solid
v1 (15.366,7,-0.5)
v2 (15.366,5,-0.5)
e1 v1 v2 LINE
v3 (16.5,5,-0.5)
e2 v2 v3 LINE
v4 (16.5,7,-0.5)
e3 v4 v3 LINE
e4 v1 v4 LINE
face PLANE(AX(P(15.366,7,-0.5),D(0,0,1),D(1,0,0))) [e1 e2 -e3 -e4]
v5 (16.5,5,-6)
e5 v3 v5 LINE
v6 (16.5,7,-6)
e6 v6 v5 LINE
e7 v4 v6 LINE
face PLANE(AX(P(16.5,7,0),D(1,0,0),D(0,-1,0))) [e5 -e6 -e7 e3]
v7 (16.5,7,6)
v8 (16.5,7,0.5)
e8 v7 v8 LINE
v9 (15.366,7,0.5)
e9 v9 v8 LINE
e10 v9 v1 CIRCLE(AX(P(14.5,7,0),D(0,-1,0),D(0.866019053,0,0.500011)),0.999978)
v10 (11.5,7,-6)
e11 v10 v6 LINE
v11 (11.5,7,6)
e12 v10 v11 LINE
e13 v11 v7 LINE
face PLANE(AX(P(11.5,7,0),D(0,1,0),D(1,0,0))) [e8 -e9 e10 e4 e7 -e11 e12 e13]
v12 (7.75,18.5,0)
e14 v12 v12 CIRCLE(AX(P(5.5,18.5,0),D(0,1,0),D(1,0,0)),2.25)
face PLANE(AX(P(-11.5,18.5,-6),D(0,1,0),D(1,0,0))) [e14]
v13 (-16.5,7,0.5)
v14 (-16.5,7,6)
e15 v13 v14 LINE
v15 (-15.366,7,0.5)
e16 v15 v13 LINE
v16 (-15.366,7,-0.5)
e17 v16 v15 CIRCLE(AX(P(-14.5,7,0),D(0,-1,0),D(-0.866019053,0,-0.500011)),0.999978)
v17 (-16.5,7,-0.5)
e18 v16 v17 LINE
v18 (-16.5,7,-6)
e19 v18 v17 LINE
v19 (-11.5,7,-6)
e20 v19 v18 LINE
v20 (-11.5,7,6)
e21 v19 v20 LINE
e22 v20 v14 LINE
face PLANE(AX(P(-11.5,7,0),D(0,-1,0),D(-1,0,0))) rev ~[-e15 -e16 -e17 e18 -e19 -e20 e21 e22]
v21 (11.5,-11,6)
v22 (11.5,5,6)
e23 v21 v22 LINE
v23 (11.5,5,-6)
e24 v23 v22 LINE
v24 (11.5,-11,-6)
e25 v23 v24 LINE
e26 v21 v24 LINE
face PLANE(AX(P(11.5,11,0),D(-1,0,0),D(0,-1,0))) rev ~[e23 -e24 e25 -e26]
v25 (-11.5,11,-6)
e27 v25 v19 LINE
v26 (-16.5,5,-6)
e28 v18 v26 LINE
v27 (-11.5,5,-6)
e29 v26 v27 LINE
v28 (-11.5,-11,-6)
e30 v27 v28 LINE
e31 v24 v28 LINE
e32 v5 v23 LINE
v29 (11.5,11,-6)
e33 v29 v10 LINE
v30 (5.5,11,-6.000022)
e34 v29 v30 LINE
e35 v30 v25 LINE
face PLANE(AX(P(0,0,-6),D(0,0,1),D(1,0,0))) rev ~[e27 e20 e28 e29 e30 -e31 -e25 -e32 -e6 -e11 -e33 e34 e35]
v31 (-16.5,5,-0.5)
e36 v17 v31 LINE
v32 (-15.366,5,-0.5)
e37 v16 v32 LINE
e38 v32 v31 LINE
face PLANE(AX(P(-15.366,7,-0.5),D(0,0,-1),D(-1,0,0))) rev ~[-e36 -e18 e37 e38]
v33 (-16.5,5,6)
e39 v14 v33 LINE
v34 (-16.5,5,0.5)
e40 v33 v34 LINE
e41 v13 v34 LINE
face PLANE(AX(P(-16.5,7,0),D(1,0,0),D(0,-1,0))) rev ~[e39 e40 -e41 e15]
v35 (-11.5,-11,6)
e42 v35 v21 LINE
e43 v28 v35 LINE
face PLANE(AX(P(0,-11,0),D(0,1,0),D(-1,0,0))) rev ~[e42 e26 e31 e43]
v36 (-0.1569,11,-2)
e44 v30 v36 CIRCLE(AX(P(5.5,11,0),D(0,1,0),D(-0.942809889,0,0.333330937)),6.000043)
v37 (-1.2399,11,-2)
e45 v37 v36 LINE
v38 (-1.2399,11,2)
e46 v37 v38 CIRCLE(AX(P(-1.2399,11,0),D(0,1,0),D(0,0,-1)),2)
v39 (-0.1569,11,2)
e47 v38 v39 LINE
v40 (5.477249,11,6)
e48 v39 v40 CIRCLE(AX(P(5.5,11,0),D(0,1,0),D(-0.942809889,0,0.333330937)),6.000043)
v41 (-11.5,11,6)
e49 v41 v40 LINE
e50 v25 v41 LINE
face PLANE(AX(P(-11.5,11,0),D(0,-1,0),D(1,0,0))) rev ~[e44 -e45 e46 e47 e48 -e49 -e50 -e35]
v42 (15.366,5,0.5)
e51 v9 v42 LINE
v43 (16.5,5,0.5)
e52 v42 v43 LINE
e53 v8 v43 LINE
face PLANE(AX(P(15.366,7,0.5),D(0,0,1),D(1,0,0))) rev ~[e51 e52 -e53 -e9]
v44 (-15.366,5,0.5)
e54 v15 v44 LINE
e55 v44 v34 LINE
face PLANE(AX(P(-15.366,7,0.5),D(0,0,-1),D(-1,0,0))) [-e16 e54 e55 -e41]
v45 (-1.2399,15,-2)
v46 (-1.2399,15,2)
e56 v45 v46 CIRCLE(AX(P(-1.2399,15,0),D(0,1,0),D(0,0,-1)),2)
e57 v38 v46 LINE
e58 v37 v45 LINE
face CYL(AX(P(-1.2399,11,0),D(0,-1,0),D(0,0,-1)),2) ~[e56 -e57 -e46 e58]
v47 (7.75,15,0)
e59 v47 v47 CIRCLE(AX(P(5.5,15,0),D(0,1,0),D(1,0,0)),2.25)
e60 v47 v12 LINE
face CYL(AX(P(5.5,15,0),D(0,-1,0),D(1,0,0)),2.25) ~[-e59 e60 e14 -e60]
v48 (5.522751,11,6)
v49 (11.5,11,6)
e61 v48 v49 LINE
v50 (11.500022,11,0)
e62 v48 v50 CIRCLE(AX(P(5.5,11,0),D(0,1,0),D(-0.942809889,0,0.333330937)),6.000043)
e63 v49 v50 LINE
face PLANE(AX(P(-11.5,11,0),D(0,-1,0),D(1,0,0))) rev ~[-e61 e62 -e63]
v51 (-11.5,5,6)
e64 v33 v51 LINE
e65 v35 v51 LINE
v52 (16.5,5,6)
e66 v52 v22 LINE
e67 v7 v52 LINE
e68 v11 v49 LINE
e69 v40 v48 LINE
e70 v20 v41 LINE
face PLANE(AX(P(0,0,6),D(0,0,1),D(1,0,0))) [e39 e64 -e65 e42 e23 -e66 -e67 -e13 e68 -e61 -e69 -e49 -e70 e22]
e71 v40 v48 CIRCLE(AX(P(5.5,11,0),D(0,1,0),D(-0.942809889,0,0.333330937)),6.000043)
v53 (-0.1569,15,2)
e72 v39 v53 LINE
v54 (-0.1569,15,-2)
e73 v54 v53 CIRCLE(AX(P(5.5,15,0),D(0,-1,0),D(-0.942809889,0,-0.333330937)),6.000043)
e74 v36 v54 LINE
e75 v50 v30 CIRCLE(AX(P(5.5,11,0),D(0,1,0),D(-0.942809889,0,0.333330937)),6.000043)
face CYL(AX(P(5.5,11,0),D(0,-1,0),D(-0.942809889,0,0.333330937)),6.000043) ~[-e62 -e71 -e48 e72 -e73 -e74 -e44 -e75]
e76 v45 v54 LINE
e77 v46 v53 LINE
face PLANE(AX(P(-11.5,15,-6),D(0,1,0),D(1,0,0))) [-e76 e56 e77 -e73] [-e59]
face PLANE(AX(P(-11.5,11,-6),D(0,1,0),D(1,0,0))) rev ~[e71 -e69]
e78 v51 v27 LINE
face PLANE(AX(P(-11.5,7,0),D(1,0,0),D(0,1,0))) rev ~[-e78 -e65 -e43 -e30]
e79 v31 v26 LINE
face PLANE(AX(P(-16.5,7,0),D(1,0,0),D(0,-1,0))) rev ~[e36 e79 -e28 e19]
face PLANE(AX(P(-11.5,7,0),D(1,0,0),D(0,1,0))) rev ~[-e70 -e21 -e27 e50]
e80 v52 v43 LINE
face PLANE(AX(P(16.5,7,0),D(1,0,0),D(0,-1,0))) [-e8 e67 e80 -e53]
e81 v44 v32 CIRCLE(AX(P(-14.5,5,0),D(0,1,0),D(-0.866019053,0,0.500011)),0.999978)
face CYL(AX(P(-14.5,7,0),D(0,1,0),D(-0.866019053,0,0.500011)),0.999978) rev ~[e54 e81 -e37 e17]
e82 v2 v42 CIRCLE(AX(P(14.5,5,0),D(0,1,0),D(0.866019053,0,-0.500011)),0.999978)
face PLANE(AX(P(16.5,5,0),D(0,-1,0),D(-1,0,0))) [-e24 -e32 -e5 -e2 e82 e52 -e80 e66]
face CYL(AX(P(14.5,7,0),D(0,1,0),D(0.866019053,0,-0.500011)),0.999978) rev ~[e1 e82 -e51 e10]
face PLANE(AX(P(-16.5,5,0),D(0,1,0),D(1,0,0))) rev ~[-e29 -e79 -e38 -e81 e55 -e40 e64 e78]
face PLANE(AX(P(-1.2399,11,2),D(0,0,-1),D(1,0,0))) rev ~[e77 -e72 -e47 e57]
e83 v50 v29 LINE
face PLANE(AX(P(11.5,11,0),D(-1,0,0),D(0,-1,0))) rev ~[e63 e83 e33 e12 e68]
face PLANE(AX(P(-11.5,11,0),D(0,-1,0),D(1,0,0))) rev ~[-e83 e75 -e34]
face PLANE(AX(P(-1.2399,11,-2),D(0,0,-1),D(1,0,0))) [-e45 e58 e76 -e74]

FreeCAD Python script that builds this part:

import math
import FreeCAD as App
import Part
import Sketcher
from FreeCAD import Vector


def add_polygon(sketch, points):
    """Adds a closed chain of lines whose ends are joined by coincident constraints."""
    first, n = sketch.GeometryCount, len(points)
    for a, b in zip(points, points[1:] + points[:1]):
        sketch.addGeometry(Part.LineSegment(App.Vector(*a, 0), App.Vector(*b, 0)), False)
    for i in range(n):
        sketch.addConstraint(Sketcher.Constraint("Coincident", first + i, 2, first + (i + 1) % n, 1))

doc = App.newDocument("Part")
body = doc.addObject("PartDesign::Body", "Body")

# Sketch on XY plane
sketch1 = doc.addObject("Sketcher::SketchObject", "Sketch")
body.addObject(sketch1)
sketch1.AttachmentSupport = (doc.XY_Plane, [""])
sketch1.MapMode = "FlatFace"
add_polygon(sketch1, [(-11.5, 11), (-11.5, -11), (11.5, -11), (11.5, 11)])  # lines 0-3
sketch1.addConstraint([
    Sketcher.Constraint("Vertical", 0),
    Sketcher.Constraint("Horizontal", 1),
    Sketcher.Constraint("Vertical", 2),
    Sketcher.Constraint("Horizontal", 3),
    Sketcher.Constraint("Symmetric", 0, 2, 2, 2, -1, 1),
    Sketcher.Constraint("DistanceX", 1, 1, 1, 2, 23.0),
    Sketcher.Constraint("DistanceY", 0, 2, 0, 1, 22.0),
])
pad1 = doc.addObject("PartDesign::Pad", "Pad")
body.addObject(pad1)
pad1.Profile = sketch1
pad1.Length = 12
pad1.Midplane = True

# Sketch on XY plane
sketch2 = doc.addObject("Sketcher::SketchObject", "Sketch001")
body.addObject(sketch2)
sketch2.AttachmentSupport = (doc.XY_Plane, [""])
sketch2.MapMode = "FlatFace"
add_polygon(sketch2, [(-11.5, 5), (-11.5, 7), (-16.5, 7), (-16.5, 5)])  # lines 0-3
add_polygon(sketch2, [(16.5, 7), (11.5, 7), (11.5, 5), (16.5, 5)])  # lines 4-7
sketch2.addConstraint([
    Sketcher.Constraint("Vertical", 0),
    Sketcher.Constraint("Horizontal", 1),
    Sketcher.Constraint("Vertical", 2),
    Sketcher.Constraint("Horizontal", 3),
    Sketcher.Constraint("Horizontal", 4),
    Sketcher.Constraint("Vertical", 5),
    Sketcher.Constraint("Horizontal", 6),
    Sketcher.Constraint("Vertical", 7),
    Sketcher.Constraint("Symmetric", 0, 2, 4, 2, -2),
    Sketcher.Constraint("Symmetric", 2, 2, 6, 2, -2),
    Sketcher.Constraint("DistanceX", 1, 2, 1, 1, 5.0),
    Sketcher.Constraint("DistanceY", 0, 1, 0, 2, 2.0),
    Sketcher.Constraint("DistanceY", -1, 1, 2, 2, 5.0),
    Sketcher.Constraint("DistanceX", 0, 2, 4, 2, 23.0),
])
pad2 = doc.addObject("PartDesign::Pad", "Pad001")
body.addObject(pad2)
pad2.Profile = sketch2
pad2.Length = 12
pad2.Midplane = True

# Sketch on XZ plane
sketch3 = doc.addObject("Sketcher::SketchObject", "Sketch002")
body.addObject(sketch3)
sketch3.AttachmentSupport = (doc.XZ_Plane, [""])
sketch3.MapMode = "FlatFace"
sketch3.AttachmentOffset = App.Placement(Vector(0, 0, -11), App.Rotation())
sketch3.addGeometry([
    Part.LineSegment(Vector(-1.2399, 2, 0), Vector(-0.1569, 2, 0)),
    Part.ArcOfCircle(Part.Circle(Vector(5.5, 0, 0), Vector(0, 0, 1), 6.000043), math.radians(-160.528925), math.radians(160.528925)),
    Part.LineSegment(Vector(-0.1569, -2, 0), Vector(-1.2399, -2, 0)),
    Part.ArcOfCircle(Part.Circle(Vector(-1.2399, 0, 0), Vector(0, 0, 1), 2), math.radians(90), math.radians(270)),
], False)
sketch3.addConstraint([
    Sketcher.Constraint("Coincident", 0, 2, 1, 2),
    Sketcher.Constraint("Coincident", 1, 1, 2, 1),
    Sketcher.Constraint("Tangent", 2, 2, 3, 2),
    Sketcher.Constraint("Tangent", 3, 1, 0, 1),
    Sketcher.Constraint("Horizontal", 0),
    Sketcher.Constraint("Horizontal", 2),
    Sketcher.Constraint("Symmetric", 0, 2, 1, 1, -1),
    Sketcher.Constraint("Radius", 1, 6.0),
    Sketcher.Constraint("Radius", 3, 2.0),
    Sketcher.Constraint("DistanceX", -1, 1, 1, 3, 5.5),
    Sketcher.Constraint("DistanceX", 0, 1, 0, 2, 1.083),
])
pad3 = doc.addObject("PartDesign::Pad", "Pad002")
body.addObject(pad3)
pad3.Profile = sketch3
pad3.Length = 4
pad3.Reversed = True

# Sketch on XZ plane
sketch4 = doc.addObject("Sketcher::SketchObject", "Sketch003")
body.addObject(sketch4)
sketch4.AttachmentSupport = (doc.XZ_Plane, [""])
sketch4.MapMode = "FlatFace"
sketch4.AttachmentOffset = App.Placement(Vector(0, 0, -7), App.Rotation())
sketch4.addGeometry([
    Part.LineSegment(Vector(-16.5, 0.5, 0), Vector(-15.366, 0.5, 0)),  # 0
    Part.ArcOfCircle(Part.Circle(Vector(-14.5, 0, 0), Vector(0, 0, 1), 0.999978), math.radians(-149.999272), math.radians(149.999272)),  # 1
    Part.LineSegment(Vector(-15.366, -0.5, 0), Vector(-16.5, -0.5, 0)),  # 2
    Part.LineSegment(Vector(-16.5, -0.5, 0), Vector(-16.5, 0.5, 0)),  # 3
    Part.ArcOfCircle(Part.Circle(Vector(14.5, 0, 0), Vector(0, 0, 1), 0.999978), math.radians(30.000728), math.radians(329.999272)),  # 4
    Part.LineSegment(Vector(15.366, 0.5, 0), Vector(16.5, 0.5, 0)),  # 5
    Part.LineSegment(Vector(16.5, 0.5, 0), Vector(16.5, -0.5, 0)),  # 6
    Part.LineSegment(Vector(16.5, -0.5, 0), Vector(15.366, -0.5, 0)),  # 7
], False)
sketch4.addConstraint([
    Sketcher.Constraint("Coincident", 0, 2, 1, 2),
    Sketcher.Constraint("Coincident", 1, 1, 2, 1),
    Sketcher.Constraint("Coincident", 2, 2, 3, 1),
    Sketcher.Constraint("Coincident", 3, 2, 0, 1),
    Sketcher.Constraint("Coincident", 4, 1, 5, 1),
    Sketcher.Constraint("Coincident", 5, 2, 6, 1),
    Sketcher.Constraint("Coincident", 6, 2, 7, 1),
    Sketcher.Constraint("Coincident", 7, 2, 4, 2),
    Sketcher.Constraint("Horizontal", 0),
    Sketcher.Constraint("Horizontal", 2),
    Sketcher.Constraint("Vertical", 3),
    Sketcher.Constraint("Horizontal", 5),
    Sketcher.Constraint("Vertical", 6),
    Sketcher.Constraint("Horizontal", 7),
    Sketcher.Constraint("Equal", 1, 4),
    Sketcher.Constraint("Symmetric", 1, 3, 4, 3, -1, 1),
    Sketcher.Constraint("Symmetric", 2, 2, 5, 2, -1, 1),
    Sketcher.Constraint("Symmetric", 0, 2, 4, 1, -2),
    Sketcher.Constraint("Horizontal", 2, 2, 6, 2),
    Sketcher.Constraint("Radius", 1, 1.0),
    Sketcher.Constraint("DistanceY", 3, 1, 3, 2, 1.0),
    Sketcher.Constraint("DistanceX", 2, 2, 1, 3, 2.0),
    Sketcher.Constraint("DistanceX", 1, 3, 4, 3, 29.0),
])
pocket1 = doc.addObject("PartDesign::Pocket", "Pocket")
body.addObject(pocket1)
pocket1.Profile = sketch4
pocket1.Length = 2
pocket1.Reversed = True

# Sketch on XZ plane
sketch5 = doc.addObject("Sketcher::SketchObject", "Sketch004")
body.addObject(sketch5)
sketch5.AttachmentSupport = (doc.XZ_Plane, [""])
sketch5.MapMode = "FlatFace"
sketch5.AttachmentOffset = App.Placement(Vector(0, 0, -15), App.Rotation())
sketch5.addGeometry(Part.Circle(Vector(5.5, 0, 0), Vector(0, 0, 1), 2.25), False)
sketch5.addConstraint([
    Sketcher.Constraint("PointOnObject", 0, 3, -1),
    Sketcher.Constraint("Diameter", 0, 4.5),
    Sketcher.Constraint("DistanceX", -1, 1, 0, 3, 5.5),
])
pad4 = doc.addObject("PartDesign::Pad", "Pad003")
body.addObject(pad4)
pad4.Profile = sketch5
pad4.Length = 3.5
pad4.Reversed = True

doc.recompute()
